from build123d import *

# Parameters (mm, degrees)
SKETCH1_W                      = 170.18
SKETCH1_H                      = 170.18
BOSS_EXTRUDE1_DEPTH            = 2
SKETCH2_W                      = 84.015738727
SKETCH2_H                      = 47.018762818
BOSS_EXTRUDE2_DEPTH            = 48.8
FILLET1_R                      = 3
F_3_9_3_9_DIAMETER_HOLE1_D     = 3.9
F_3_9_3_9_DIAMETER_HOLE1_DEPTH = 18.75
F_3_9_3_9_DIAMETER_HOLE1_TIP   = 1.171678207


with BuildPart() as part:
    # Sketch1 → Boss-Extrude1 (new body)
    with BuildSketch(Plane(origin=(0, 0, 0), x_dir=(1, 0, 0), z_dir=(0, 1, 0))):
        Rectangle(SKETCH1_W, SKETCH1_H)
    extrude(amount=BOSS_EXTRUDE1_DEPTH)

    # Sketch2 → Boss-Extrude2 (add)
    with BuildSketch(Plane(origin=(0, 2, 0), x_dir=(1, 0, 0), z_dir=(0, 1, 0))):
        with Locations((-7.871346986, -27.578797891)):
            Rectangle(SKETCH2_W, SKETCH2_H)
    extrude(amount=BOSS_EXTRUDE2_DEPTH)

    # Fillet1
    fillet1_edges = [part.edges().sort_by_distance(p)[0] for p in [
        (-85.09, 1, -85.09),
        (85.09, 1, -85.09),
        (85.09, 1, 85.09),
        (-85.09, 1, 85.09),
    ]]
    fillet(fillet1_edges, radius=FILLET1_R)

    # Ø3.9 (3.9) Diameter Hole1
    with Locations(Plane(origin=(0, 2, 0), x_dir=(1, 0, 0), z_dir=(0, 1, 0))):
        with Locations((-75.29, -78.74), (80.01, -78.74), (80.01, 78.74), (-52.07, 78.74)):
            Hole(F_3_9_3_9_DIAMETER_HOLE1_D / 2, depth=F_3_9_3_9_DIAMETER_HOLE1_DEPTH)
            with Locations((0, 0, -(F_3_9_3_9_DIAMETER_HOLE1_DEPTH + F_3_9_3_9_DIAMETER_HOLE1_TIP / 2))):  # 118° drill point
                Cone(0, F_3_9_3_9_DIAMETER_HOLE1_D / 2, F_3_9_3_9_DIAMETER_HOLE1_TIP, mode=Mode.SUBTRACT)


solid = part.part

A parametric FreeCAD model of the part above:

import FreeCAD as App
import Part
import Sketcher

V = App.Vector


def edges_at(feature, points):
    """Names of the edges that pass closest to the given points."""
    edges = feature.Shape.Edges
    near = lambda p: min(range(len(edges)), key=lambda i: edges[i].distToShape(Part.Vertex(*p))[0])
    return sorted({f"Edge{near(p) + 1}" for p in points})


def add_polygon(sketch, points):
    """Adds a closed chain of lines whose ends are joined by coincident constraints."""
    first, n = sketch.GeometryCount, len(points)
    for a, b in zip(points, points[1:] + points[:1]):
        sketch.addGeometry(Part.LineSegment(App.Vector(*a, 0), App.Vector(*b, 0)), False)
    for i in range(n):
        sketch.addConstraint(Sketcher.Constraint("Coincident", first + i, 2, first + (i + 1) % n, 1))

doc = App.newDocument("Part")
body = doc.addObject("PartDesign::Body", "Body")

sketch1 = body.newObject("Sketcher::SketchObject", "Sketch")
sketch1.AttachmentSupport = (doc.getObject("XZ_Plane"), [""])
sketch1.MapMode = "FlatFace"
add_polygon(sketch1, [(-85, -85), (-85, 85), (85, 85), (85, -85)])
sketch1.addConstraint(Sketcher.Constraint("Vertical", 0))
sketch1.addConstraint(Sketcher.Constraint("Horizontal", 1))
sketch1.addConstraint(Sketcher.Constraint("Vertical", 2))
sketch1.addConstraint(Sketcher.Constraint("Horizontal", 3))
sketch1.addConstraint(Sketcher.Constraint("Symmetric", 0, 2, 2, 2, -1, 1))
sketch1.addConstraint(Sketcher.Constraint("Equal", 3, 0))
sketch1.addConstraint(Sketcher.Constraint("DistanceX", 1, 1, 1, 2, 170.18))
pad1 = body.newObject("PartDesign::Pad", "Pad")
pad1.Profile = sketch1
pad1.Length = 2
pad1.Reversed = True

sketch2 = body.newObject("Sketcher::SketchObject", "Sketch001")
sketch2.AttachmentSupport = (doc.getObject("XZ_Plane"), [""])
sketch2.MapMode = "FlatFace"
sketch2.AttachmentOffset = App.Placement(V(0, 0, -2), App.Rotation())
add_polygon(sketch2, [(-50, 4), (-50, 51), (34, 51), (34, 4)])
sketch2.addConstraint(Sketcher.Constraint("Vertical", 0))
sketch2.addConstraint(Sketcher.Constraint("Horizontal", 1))
sketch2.addConstraint(Sketcher.Constraint("Vertical", 2))
sketch2.addConstraint(Sketcher.Constraint("Horizontal", 3))
sketch2.addConstraint(Sketcher.Constraint("DistanceX", 1, 1, 1, 2, 84.015739))
sketch2.addConstraint(Sketcher.Constraint("DistanceY", 0, 1, 0, 2, 47.018763))
sketch2.addConstraint(Sketcher.Constraint("DistanceY", -1, 1, 0, 2, 51.088179))
sketch2.addConstraint(Sketcher.Constraint("DistanceX", 0, 2, -1, 1, 49.879216))
pad2 = body.newObject("PartDesign::Pad", "Pad001")
pad2.Profile = sketch2
pad2.Length = 48.8
pad2.Reversed = True
doc.recompute()

fillet = body.newObject("PartDesign::Fillet", "Fillet")
fillet.Base = (pad2, edges_at(pad2, [
    (-85.09, 1, -85.09),
    (85.09, 1, -85.09),
    (85.09, 1, 85.09),
    (-85.09, 1, 85.09),
]))
fillet.Radius = 3

sketch3 = body.newObject("Sketcher::SketchObject", "Sketch002")
sketch3.AttachmentSupport = (doc.getObject("XZ_Plane"), [""])
sketch3.MapMode = "FlatFace"
sketch3.AttachmentOffset = App.Placement(V(0, 0, -2), App.Rotation())
sketch3.addGeometry(Part.Circle(V(-75.3, 78.7, 0), V(0, 0, 1), 1.9), False)
sketch3.addGeometry(Part.Circle(V(80, 78.7, 0), V(0, 0, 1), 1.9), False)
sketch3.addGeometry(Part.Circle(V(80, -78.7, 0), V(0, 0, 1), 1.9), False)
sketch3.addGeometry(Part.Circle(V(-52.1, -78.7, 0), V(0, 0, 1), 1.9), False)
sketch3.addConstraint(Sketcher.Constraint("Equal", 0, 1))
sketch3.addConstraint(Sketcher.Constraint("Equal", 1, 2))
sketch3.addConstraint(Sketcher.Constraint("Equal", 2, 3))
sketch3.addConstraint(Sketcher.Constraint("Symmetric", 1, 3, 2, 3, -1))
sketch3.addConstraint(Sketcher.Constraint("Horizontal", 0, 3, 1, 3))
sketch3.addConstraint(Sketcher.Constraint("Horizontal", 2, 3, 3, 3))
sketch3.addConstraint(Sketcher.Constraint("Diameter", 0, 3.9))
sketch3.addConstraint(Sketcher.Constraint("DistanceX", 0, 3, 1, 3, 155.3))
sketch3.addConstraint(Sketcher.Constraint("DistanceX", 0, 3, -1, 1, 75.29))
sketch3.addConstraint(Sketcher.Constraint("DistanceY", -1, 1, 0, 3, 78.74))
sketch3.addConstraint(Sketcher.Constraint("DistanceX", 3, 3, -1, 1, 52.07))
doc.recompute()
hole = body.newObject("PartDesign::Hole", "Hole")
hole.Profile = sketch3
hole.ThreadType = "None"
hole.Diameter = 3.9
hole.DepthType = "Dimension"
hole.Depth = 18.75
hole.DrillPoint = "Angled"
hole.DrillPointAngle = 118
hole.Reversed = True

doc.recompute()
